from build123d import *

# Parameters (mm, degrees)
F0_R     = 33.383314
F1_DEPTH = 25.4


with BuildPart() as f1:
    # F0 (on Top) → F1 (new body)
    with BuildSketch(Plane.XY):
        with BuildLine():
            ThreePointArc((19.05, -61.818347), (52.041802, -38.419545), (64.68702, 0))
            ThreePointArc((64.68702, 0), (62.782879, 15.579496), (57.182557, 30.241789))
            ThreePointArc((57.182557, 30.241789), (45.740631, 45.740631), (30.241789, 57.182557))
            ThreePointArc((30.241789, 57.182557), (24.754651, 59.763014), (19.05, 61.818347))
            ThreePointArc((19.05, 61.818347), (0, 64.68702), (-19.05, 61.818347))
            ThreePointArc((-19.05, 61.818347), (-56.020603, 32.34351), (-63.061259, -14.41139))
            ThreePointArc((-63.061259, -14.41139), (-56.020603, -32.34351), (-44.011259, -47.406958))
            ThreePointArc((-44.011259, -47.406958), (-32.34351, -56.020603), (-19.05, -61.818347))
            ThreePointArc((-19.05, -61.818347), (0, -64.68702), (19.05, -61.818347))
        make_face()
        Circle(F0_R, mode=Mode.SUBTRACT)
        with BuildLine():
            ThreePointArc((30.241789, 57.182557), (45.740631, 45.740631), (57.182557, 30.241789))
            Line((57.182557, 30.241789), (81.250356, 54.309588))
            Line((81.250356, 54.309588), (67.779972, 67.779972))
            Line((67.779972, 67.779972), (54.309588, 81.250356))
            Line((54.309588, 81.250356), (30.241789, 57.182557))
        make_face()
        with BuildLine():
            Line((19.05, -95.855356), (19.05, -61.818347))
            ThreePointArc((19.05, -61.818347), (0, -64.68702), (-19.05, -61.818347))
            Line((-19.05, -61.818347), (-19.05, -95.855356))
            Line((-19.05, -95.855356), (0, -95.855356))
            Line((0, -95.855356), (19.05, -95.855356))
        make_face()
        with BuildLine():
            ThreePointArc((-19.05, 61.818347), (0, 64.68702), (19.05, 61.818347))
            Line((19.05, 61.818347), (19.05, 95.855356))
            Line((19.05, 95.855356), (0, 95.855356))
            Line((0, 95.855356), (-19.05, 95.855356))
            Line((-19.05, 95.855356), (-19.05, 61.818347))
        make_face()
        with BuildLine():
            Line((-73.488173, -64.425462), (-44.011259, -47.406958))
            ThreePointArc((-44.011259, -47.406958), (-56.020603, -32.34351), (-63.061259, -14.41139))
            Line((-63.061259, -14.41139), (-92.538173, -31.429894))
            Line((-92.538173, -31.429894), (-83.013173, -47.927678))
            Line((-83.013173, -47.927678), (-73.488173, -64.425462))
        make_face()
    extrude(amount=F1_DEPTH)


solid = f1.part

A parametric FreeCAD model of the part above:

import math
import FreeCAD as App
import Part
import Sketcher
from FreeCAD import Vector
Q = App.Units.Quantity

doc = App.newDocument("Part")
params = doc.addObject("Spreadsheet::Sheet", "Params")
for row, (alias, value) in enumerate([
    ("sketch1_width", "1.5 in"),
    ("sketch1_length", "1.5 in"),
    ("pad1_length", "1 in"),
], start=1):
    params.set(f"A{row}", alias)
    params.set(f"B{row}", "=" + value)
    params.setAlias(f"B{row}", alias)

body = doc.addObject("PartDesign::Body", "Body")

sketch1 = doc.addObject("Sketcher::SketchObject", "Sketch")
body.addObject(sketch1)
sketch1.AttachmentSupport = (doc.XY_Plane, [""])
sketch1.MapMode = "FlatFace"
sketch1.addGeometry([
    Part.ArcOfCircle(Part.Circle(Vector(0.000002, -0.000001, 0), Vector(0, 0, 1), 64.687018), math.radians(-72.872747), math.radians(0.000001)),
    Part.ArcOfCircle(Part.Circle(Vector(0, 0.000001, 0), Vector(0, 0, 1), 64.68702), math.radians(-0.000001), math.radians(27.872745)),
    Part.LineSegment(Vector(57.182557, 30.241789, 0), Vector(81.250356, 54.309588, 0)),
    Part.LineSegment(Vector(81.250356, 54.309588, 0), Vector(54.309588, 81.250356, 0)),
    Part.LineSegment(Vector(54.309588, 81.250356, 0), Vector(30.241789, 57.182557, 0)),
    Part.ArcOfCircle(Part.Circle(Vector(0.000012, 0.000018, 0), Vector(0, 0, 1), 64.686999), math.radians(62.127256), math.radians(72.872751)),
    Part.LineSegment(Vector(19.05, 61.818347, 0), Vector(19.05, 95.855356, 0)),
    Part.LineSegment(Vector(19.05, 95.855356, 0), Vector(-19.05, 95.855356, 0)),
    Part.LineSegment(Vector(-19.05, 95.855356, 0), Vector(-19.05, 61.818347, 0)),
    Part.ArcOfCircle(Part.Circle(Vector(-0.000002, 0.000001, 0), Vector(0, 0, 1), 64.687019), math.radians(107.127253), math.radians(192.872747)),
    Part.LineSegment(Vector(-63.061259, -14.41139, 0), Vector(-92.538173, -31.429894, 0)),
    Part.LineSegment(Vector(-92.538173, -31.429894, 0), Vector(-73.488173, -64.425462, 0)),
    Part.LineSegment(Vector(-73.488173, -64.425462, 0), Vector(-44.011259, -47.406958, 0)),
    Part.ArcOfCircle(Part.Circle(Vector(-0.000008, -0.000011, 0), Vector(0, 0, 1), 64.687007), math.radians(-132.872747), math.radians(-107.127251)),
    Part.LineSegment(Vector(-19.05, -61.818347, 0), Vector(-19.05, -95.855356, 0)),
    Part.LineSegment(Vector(-19.05, -95.855356, 0), Vector(19.05, -95.855356, 0)),
    Part.LineSegment(Vector(19.05, -95.855356, 0), Vector(19.05, -61.818347, 0)),
    Part.Circle(Vector(0, 0, 0), Vector(0, 0, 1), 33.383314),
], False)
sketch1.addConstraint([
    Sketcher.Constraint("Tangent", 0, 2, 1, 1),
    Sketcher.Constraint("Coincident", 1, 2, 2, 1),
    Sketcher.Constraint("Coincident", 2, 2, 3, 1),
    Sketcher.Constraint("Coincident", 3, 2, 4, 1),
    Sketcher.Constraint("Coincident", 4, 2, 5, 1),
    Sketcher.Constraint("Coincident", 5, 2, 6, 1),
    Sketcher.Constraint("Coincident", 6, 2, 7, 1),
    Sketcher.Constraint("Coincident", 7, 2, 8, 1),
    Sketcher.Constraint("Coincident", 8, 2, 9, 1),
    Sketcher.Constraint("Coincident", 9, 2, 10, 1),
    Sketcher.Constraint("Coincident", 10, 2, 11, 1),
    Sketcher.Constraint("Coincident", 11, 2, 12, 1),
    Sketcher.Constraint("Coincident", 12, 2, 13, 1),
    Sketcher.Constraint("Coincident", 13, 2, 14, 1),
    Sketcher.Constraint("Coincident", 14, 2, 15, 1),
    Sketcher.Constraint("Coincident", 15, 2, 16, 1),
    Sketcher.Constraint("Coincident", 16, 2, 0, 1),
    Sketcher.Constraint("Vertical", 6),
    Sketcher.Constraint("Horizontal", 7),
    Sketcher.Constraint("Vertical", 8),
    Sketcher.Constraint("Vertical", 14),
    Sketcher.Constraint("Horizontal", 15),
    Sketcher.Constraint("Vertical", 16),
    Sketcher.Constraint("Coincident", 0, 3, -1, 1),
    Sketcher.Constraint("Coincident", 9, 3, -1, 1),
    Sketcher.Constraint("Coincident", 17, 3, -1, 1),
    Sketcher.Constraint("Equal", 1, 9),
    Sketcher.Constraint("Symmetric", 5, 3, 13, 3, -1, 1),
    Sketcher.Constraint("Symmetric", 5, 2, 13, 2, -1, 1),
    Sketcher.Constraint("Symmetric", 7, 2, 15, 2, -1, 1),
    Sketcher.Constraint("Symmetric", 5, 2, 8, 2, -2),
    Sketcher.Constraint("PointOnObject", 0, 2, -1),
    Sketcher.Constraint("Perpendicular", 2, 3),
    Sketcher.Constraint("Perpendicular", 3, 4),
    Sketcher.Constraint("Perpendicular", 10, 11),
    Sketcher.Constraint("Perpendicular", 11, 12),
    Sketcher.Constraint("Horizontal", 13, 2, 16, 2),
    Sketcher.Constraint("Equal", 2, 4),
    Sketcher.Constraint("Equal", 4, 10),
    Sketcher.Constraint("Equal", 3, 11),
    Sketcher.Constraint("Equal", 10, 12),
    Sketcher.Constraint("DistanceX", 7, 2, 7, 1, Q("1.5 in")),
    Sketcher.Constraint("Angle", 2, Q("45 deg")),
    Sketcher.Constraint("Angle", 10, Q("-150 deg")),
    Sketcher.Constraint("Distance", 3, Q("1.5 in")),
    Sketcher.Constraint("Radius", 5, 64.686999),
    Sketcher.Constraint("Radius", 0, 64.687018),
    Sketcher.Constraint("DistanceY", 3, 2, 6, 2, Q("0.575 in")),
    Sketcher.Constraint("Diameter", 17, 66.766628),
    Sketcher.Constraint("DistanceX", 0, 2, 2, 2, Q("0.6520998 in")),
    Sketcher.Constraint("DistanceY", 6, 1, 6, 2, 34.037009),
])
sketch1.setExpression("Constraints[41]", "Params.sketch1_width")
sketch1.setExpression("Constraints[44]", "Params.sketch1_length")
pad1 = doc.addObject("PartDesign::Pad", "Pad")
body.addObject(pad1)
pad1.Profile = sketch1
pad1.setExpression("Length", "Params.pad1_length")

doc.recompute()
